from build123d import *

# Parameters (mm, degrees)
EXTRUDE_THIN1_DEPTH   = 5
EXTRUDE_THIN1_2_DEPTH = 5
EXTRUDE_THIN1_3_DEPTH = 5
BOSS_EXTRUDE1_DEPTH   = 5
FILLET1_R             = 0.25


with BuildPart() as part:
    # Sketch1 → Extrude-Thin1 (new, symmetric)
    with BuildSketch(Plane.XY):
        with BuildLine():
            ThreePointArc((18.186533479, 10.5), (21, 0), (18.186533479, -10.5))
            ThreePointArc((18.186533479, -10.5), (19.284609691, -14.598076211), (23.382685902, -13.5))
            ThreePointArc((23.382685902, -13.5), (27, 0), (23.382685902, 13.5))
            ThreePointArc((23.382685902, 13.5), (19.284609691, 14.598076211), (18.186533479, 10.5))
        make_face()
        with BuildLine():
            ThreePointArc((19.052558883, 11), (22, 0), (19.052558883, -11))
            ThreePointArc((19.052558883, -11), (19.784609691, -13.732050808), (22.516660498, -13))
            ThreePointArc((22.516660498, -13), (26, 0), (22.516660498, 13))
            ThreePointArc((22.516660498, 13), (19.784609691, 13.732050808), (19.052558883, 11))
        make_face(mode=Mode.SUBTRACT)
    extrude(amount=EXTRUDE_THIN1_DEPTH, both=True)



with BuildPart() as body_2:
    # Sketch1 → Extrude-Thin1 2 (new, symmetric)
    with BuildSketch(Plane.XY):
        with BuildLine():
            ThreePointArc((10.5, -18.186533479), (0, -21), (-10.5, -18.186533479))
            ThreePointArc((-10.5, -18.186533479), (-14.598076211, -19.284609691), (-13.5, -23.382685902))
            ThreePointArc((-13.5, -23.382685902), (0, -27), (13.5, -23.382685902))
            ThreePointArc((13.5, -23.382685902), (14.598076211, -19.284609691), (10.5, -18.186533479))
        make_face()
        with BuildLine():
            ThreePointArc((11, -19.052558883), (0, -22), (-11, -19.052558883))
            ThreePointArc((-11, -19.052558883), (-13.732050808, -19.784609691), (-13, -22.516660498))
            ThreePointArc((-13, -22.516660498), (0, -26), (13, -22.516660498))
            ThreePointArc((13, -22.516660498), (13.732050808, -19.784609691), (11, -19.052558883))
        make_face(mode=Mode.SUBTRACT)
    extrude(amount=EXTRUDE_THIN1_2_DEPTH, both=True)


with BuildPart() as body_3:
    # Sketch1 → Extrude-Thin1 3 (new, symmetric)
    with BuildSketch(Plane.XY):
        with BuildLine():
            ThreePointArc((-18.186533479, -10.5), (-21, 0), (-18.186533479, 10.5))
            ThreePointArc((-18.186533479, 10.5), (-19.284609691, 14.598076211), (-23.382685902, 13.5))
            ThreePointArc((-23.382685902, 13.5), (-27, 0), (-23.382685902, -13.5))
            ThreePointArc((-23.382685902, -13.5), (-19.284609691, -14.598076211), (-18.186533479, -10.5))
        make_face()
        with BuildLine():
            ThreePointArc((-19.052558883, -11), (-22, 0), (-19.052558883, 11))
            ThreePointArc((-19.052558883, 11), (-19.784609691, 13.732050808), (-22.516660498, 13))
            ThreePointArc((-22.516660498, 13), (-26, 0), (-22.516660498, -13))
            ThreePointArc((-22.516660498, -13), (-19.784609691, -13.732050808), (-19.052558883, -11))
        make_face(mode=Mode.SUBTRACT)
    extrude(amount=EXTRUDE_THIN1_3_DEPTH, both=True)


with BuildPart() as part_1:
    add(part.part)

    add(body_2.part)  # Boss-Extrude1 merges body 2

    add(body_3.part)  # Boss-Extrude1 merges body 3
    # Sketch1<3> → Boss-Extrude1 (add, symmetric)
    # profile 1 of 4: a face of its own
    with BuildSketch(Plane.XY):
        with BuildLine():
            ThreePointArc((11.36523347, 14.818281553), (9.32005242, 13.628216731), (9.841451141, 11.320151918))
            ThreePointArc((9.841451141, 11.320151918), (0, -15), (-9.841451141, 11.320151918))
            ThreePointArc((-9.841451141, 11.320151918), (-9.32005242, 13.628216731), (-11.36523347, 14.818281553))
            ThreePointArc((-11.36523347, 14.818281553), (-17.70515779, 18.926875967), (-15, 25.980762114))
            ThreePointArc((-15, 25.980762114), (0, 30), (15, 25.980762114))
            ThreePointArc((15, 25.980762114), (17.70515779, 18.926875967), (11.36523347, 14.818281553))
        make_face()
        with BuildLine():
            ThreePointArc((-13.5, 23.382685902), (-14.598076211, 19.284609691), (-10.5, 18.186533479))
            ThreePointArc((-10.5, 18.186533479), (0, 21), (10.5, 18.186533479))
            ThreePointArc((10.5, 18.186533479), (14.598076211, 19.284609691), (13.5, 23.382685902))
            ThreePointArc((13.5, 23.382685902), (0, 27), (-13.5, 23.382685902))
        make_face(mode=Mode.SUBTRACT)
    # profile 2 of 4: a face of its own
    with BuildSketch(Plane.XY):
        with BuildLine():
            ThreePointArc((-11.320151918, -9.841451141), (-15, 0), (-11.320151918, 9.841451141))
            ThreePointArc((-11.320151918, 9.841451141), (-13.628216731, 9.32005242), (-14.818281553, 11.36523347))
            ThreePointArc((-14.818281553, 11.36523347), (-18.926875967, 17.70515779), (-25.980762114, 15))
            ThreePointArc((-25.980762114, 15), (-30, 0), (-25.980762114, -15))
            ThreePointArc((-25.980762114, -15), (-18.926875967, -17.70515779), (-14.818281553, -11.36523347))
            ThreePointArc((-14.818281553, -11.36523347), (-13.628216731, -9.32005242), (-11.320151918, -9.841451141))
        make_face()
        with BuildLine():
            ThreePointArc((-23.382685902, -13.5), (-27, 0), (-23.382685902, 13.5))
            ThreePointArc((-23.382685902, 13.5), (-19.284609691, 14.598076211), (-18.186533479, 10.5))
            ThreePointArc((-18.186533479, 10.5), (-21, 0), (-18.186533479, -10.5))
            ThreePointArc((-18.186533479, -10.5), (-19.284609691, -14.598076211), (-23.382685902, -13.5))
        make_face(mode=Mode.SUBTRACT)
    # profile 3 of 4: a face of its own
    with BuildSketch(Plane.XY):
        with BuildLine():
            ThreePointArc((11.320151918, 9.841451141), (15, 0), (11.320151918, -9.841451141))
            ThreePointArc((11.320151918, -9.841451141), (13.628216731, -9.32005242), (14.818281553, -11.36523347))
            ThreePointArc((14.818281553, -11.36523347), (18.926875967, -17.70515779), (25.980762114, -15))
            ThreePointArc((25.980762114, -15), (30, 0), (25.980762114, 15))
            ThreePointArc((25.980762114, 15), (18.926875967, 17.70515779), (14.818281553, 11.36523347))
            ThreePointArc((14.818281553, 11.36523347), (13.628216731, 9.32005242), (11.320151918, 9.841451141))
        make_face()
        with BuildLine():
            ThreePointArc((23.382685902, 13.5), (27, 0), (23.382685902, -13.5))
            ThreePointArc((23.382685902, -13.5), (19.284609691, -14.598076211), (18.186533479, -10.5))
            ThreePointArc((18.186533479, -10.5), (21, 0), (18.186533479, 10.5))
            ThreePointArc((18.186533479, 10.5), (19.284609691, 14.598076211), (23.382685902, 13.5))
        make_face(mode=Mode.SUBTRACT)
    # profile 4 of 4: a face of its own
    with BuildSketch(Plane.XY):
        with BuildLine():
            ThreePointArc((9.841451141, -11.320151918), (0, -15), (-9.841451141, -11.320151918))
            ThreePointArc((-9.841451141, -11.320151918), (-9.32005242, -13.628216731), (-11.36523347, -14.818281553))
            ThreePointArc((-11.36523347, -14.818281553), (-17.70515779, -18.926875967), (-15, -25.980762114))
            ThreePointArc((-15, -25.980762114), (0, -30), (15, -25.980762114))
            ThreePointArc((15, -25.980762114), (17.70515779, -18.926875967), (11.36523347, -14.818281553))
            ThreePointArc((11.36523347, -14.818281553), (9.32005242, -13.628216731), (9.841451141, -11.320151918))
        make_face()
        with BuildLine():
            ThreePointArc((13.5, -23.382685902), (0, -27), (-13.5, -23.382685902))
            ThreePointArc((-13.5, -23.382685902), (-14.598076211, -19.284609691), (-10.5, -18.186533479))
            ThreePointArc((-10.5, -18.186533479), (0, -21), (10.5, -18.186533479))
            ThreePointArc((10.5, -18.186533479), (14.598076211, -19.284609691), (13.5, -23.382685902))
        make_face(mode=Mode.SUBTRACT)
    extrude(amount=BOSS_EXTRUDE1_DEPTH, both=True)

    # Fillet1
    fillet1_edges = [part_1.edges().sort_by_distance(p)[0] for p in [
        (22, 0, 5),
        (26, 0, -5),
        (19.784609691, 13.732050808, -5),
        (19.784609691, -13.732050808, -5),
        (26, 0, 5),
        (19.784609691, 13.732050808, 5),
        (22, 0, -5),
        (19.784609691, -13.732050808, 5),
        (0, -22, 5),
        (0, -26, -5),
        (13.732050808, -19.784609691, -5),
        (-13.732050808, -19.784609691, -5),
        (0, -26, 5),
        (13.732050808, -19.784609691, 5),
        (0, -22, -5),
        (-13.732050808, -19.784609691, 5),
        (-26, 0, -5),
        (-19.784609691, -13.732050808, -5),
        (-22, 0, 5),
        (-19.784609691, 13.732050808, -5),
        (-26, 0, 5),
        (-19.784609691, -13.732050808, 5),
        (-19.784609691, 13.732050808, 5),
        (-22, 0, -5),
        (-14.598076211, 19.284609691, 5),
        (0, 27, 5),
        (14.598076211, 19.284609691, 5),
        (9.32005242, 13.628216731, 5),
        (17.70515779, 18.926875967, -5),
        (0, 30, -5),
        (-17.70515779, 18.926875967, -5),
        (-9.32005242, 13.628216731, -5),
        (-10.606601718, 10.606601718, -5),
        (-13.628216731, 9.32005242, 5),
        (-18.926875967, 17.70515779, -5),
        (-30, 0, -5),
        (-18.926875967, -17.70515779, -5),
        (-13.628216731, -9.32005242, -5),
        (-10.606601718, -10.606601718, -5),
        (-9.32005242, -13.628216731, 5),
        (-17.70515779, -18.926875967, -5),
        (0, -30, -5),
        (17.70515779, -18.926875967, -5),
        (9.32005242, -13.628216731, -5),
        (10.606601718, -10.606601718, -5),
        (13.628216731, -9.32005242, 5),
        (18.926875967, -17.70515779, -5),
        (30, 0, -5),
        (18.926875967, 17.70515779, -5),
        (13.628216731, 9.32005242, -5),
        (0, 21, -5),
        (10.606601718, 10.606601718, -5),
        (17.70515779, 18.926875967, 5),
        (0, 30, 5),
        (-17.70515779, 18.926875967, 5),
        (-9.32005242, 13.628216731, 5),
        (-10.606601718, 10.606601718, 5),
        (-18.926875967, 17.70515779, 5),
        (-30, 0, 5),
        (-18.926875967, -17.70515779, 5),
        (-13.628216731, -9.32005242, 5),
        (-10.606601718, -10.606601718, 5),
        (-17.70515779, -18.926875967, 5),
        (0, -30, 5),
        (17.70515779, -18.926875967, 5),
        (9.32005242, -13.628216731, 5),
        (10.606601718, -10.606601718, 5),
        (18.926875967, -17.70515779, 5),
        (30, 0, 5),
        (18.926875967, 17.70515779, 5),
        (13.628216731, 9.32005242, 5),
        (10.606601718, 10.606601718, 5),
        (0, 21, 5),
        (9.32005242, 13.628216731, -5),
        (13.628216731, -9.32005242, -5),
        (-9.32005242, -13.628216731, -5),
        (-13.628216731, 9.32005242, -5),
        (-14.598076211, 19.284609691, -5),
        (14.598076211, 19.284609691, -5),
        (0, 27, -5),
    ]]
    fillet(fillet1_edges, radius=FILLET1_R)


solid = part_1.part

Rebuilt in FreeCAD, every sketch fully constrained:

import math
import FreeCAD as App
import Part
import Sketcher
Q = App.Units.Quantity


def edges_at(feature, points):
    """Names of the edges that pass closest to the given points."""
    edges = feature.Shape.Edges
    near = lambda p: min(range(len(edges)), key=lambda i: edges[i].distToShape(Part.Vertex(*p))[0])
    return sorted({f"Edge{near(p) + 1}" for p in points})

doc = App.newDocument("Part")
body = doc.addObject("PartDesign::Body", "Body")

# Sketch on XY plane
sketch1 = doc.addObject("Sketcher::SketchObject", "Sketch")
body.addObject(sketch1)
sketch1.AttachmentSupport = (doc.XY_Plane, [""])
sketch1.MapMode = "FlatFace"
sketch1.addGeometry(Part.ArcOfCircle(Part.Circle(App.Vector(0, 0, 0), App.Vector(0, 0, 1), 21), math.radians(-30), math.radians(30)), False)
sketch1.addGeometry(Part.ArcOfCircle(Part.Circle(App.Vector(20.8, -12, 0), App.Vector(0, 0, 1), 3), math.radians(150), math.radians(330)), False)
sketch1.addGeometry(Part.ArcOfCircle(Part.Circle(App.Vector(0, 0, 0), App.Vector(0, 0, 1), 27), math.radians(-30), math.radians(30)), False)
sketch1.addGeometry(Part.ArcOfCircle(Part.Circle(App.Vector(20.8, 12, 0), App.Vector(0, 0, 1), 3), math.radians(30), math.radians(210)), False)
sketch1.addGeometry(Part.ArcOfCircle(Part.Circle(App.Vector(0, 0, 0), App.Vector(0, 0, 1), 22), math.radians(-30), math.radians(30)), False)
sketch1.addGeometry(Part.ArcOfCircle(Part.Circle(App.Vector(20.8, 12, 0), App.Vector(0, 0, 1), 2), math.radians(30), math.radians(210)), False)
sketch1.addGeometry(Part.ArcOfCircle(Part.Circle(App.Vector(0, 0, 0), App.Vector(0, 0, 1), 26), math.radians(-30), math.radians(30)), False)
sketch1.addGeometry(Part.ArcOfCircle(Part.Circle(App.Vector(20.8, -12, 0), App.Vector(0, 0, 1), 2), math.radians(150), math.radians(330)), False)
sketch1.addConstraint(Sketcher.Constraint("Tangent", 0, 1, 1, 1))
sketch1.addConstraint(Sketcher.Constraint("Tangent", 1, 2, 2, 1))
sketch1.addConstraint(Sketcher.Constraint("Tangent", 2, 2, 3, 1))
sketch1.addConstraint(Sketcher.Constraint("Tangent", 3, 2, 0, 2))
sketch1.addConstraint(Sketcher.Constraint("Tangent", 4, 2, 5, 2))
sketch1.addConstraint(Sketcher.Constraint("Tangent", 5, 1, 6, 2))
sketch1.addConstraint(Sketcher.Constraint("Tangent", 6, 1, 7, 2))
sketch1.addConstraint(Sketcher.Constraint("Tangent", 7, 1, 4, 1))
sketch1.addConstraint(Sketcher.Constraint("Coincident", 0, 3, -1, 1))
sketch1.addConstraint(Sketcher.Constraint("Coincident", 2, 3, -1, 1))
sketch1.addConstraint(Sketcher.Constraint("Coincident", 4, 3, -1, 1))
sketch1.addConstraint(Sketcher.Constraint("Coincident", 6, 3, -1, 1))
sketch1.addConstraint(Sketcher.Constraint("Coincident", 5, 3, 3, 3))
sketch1.addConstraint(Sketcher.Constraint("Vertical", 1, 3, 3, 3))
sketch1.addConstraint(Sketcher.Constraint("Vertical", 5, 3, 7, 3))
sketch1.addConstraint(Sketcher.Constraint("Radius", 0, Q("21 mm")))
sketch1.addConstraint(Sketcher.Constraint("Radius", 1, Q("3 mm")))
sketch1.addConstraint(Sketcher.Constraint("Radius", 4, Q("22 mm")))
sketch1.addConstraint(Sketcher.Constraint("DistanceY", 1, 3, -1, 1, Q("12 mm")))
pad1 = doc.addObject("PartDesign::Pad", "Pad")
body.addObject(pad1)
pad1.Profile = sketch1
pad1.Length = 10
pad1.Midplane = True
body2 = doc.addObject("PartDesign::Body", "Body001")

# Sketch on XY plane
sketch2 = doc.addObject("Sketcher::SketchObject", "Sketch001")
body2.addObject(sketch2)
sketch2.AttachmentSupport = (doc.getObject("XY_Plane001"), [""])
sketch2.MapMode = "FlatFace"
sketch2.addGeometry(Part.ArcOfCircle(Part.Circle(App.Vector(0, 0, 0), App.Vector(0, 0, 1), 21), math.radians(-120), math.radians(-60)), False)
sketch2.addGeometry(Part.ArcOfCircle(Part.Circle(App.Vector(-12, -20.8, 0), App.Vector(0, 0, 1), 3), math.radians(60), math.radians(240)), False)
sketch2.addGeometry(Part.ArcOfCircle(Part.Circle(App.Vector(0, 0, 0), App.Vector(0, 0, 1), 27), math.radians(-120), math.radians(-60)), False)
sketch2.addGeometry(Part.ArcOfCircle(Part.Circle(App.Vector(12, -20.8, 0), App.Vector(0, 0, 1), 3), math.radians(-60), math.radians(120)), False)
sketch2.addGeometry(Part.ArcOfCircle(Part.Circle(App.Vector(0, 0, 0), App.Vector(0, 0, 1), 22), math.radians(-120), math.radians(-60)), False)
sketch2.addGeometry(Part.ArcOfCircle(Part.Circle(App.Vector(12, -20.8, 0), App.Vector(0, 0, 1), 2), math.radians(-60), math.radians(120)), False)
sketch2.addGeometry(Part.ArcOfCircle(Part.Circle(App.Vector(0, 0, 0), App.Vector(0, 0, 1), 26), math.radians(-120), math.radians(-60)), False)
sketch2.addGeometry(Part.ArcOfCircle(Part.Circle(App.Vector(-12, -20.8, 0), App.Vector(0, 0, 1), 2), math.radians(60), math.radians(240)), False)
sketch2.addConstraint(Sketcher.Constraint("Tangent", 0, 1, 1, 1))
sketch2.addConstraint(Sketcher.Constraint("Tangent", 1, 2, 2, 1))
sketch2.addConstraint(Sketcher.Constraint("Tangent", 2, 2, 3, 1))
sketch2.addConstraint(Sketcher.Constraint("Tangent", 3, 2, 0, 2))
sketch2.addConstraint(Sketcher.Constraint("Tangent", 4, 2, 5, 2))
sketch2.addConstraint(Sketcher.Constraint("Tangent", 5, 1, 6, 2))
sketch2.addConstraint(Sketcher.Constraint("Tangent", 6, 1, 7, 2))
sketch2.addConstraint(Sketcher.Constraint("Tangent", 7, 1, 4, 1))
sketch2.addConstraint(Sketcher.Constraint("Coincident", 0, 3, -1, 1))
sketch2.addConstraint(Sketcher.Constraint("Coincident", 2, 3, -1, 1))
sketch2.addConstraint(Sketcher.Constraint("Coincident", 4, 3, -1, 1))
sketch2.addConstraint(Sketcher.Constraint("Coincident", 6, 3, -1, 1))
sketch2.addConstraint(Sketcher.Constraint("Coincident", 5, 3, 3, 3))
sketch2.addConstraint(Sketcher.Constraint("Horizontal", 1, 3, 3, 3))
sketch2.addConstraint(Sketcher.Constraint("Horizontal", 5, 3, 7, 3))
sketch2.addConstraint(Sketcher.Constraint("Radius", 0, Q("21 mm")))
sketch2.addConstraint(Sketcher.Constraint("Radius", 1, Q("3 mm")))
sketch2.addConstraint(Sketcher.Constraint("Radius", 4, Q("22 mm")))
sketch2.addConstraint(Sketcher.Constraint("DistanceX", 1, 3, -1, 1, Q("12 mm")))
pad2 = doc.addObject("PartDesign::Pad", "Pad001")
body2.addObject(pad2)
pad2.Profile = sketch2
pad2.Length = 10
pad2.Midplane = True
body3 = doc.addObject("PartDesign::Body", "Body002")

# Sketch on XY plane
sketch3 = doc.addObject("Sketcher::SketchObject", "Sketch002")
body3.addObject(sketch3)
sketch3.AttachmentSupport = (doc.getObject("XY_Plane002"), [""])
sketch3.MapMode = "FlatFace"
sketch3.addGeometry(Part.ArcOfCircle(Part.Circle(App.Vector(0, 0, 0), App.Vector(0, 0, 1), 21), math.radians(150), math.radians(210)), False)
sketch3.addGeometry(Part.ArcOfCircle(Part.Circle(App.Vector(-20.8, 12, 0), App.Vector(0, 0, 1), 3), math.radians(-30), math.radians(150)), False)
sketch3.addGeometry(Part.ArcOfCircle(Part.Circle(App.Vector(0, 0, 0), App.Vector(0, 0, 1), 27), math.radians(150), math.radians(210)), False)
sketch3.addGeometry(Part.ArcOfCircle(Part.Circle(App.Vector(-20.8, -12, 0), App.Vector(0, 0, 1), 3), math.radians(-150), math.radians(30)), False)
sketch3.addGeometry(Part.ArcOfCircle(Part.Circle(App.Vector(0, 0, 0), App.Vector(0, 0, 1), 22), math.radians(150), math.radians(210)), False)
sketch3.addGeometry(Part.ArcOfCircle(Part.Circle(App.Vector(-20.8, -12, 0), App.Vector(0, 0, 1), 2), math.radians(-150), math.radians(30)), False)
sketch3.addGeometry(Part.ArcOfCircle(Part.Circle(App.Vector(0, 0, 0), App.Vector(0, 0, 1), 26), math.radians(150), math.radians(210)), False)
sketch3.addGeometry(Part.ArcOfCircle(Part.Circle(App.Vector(-20.8, 12, 0), App.Vector(0, 0, 1), 2), math.radians(-30), math.radians(150)), False)
sketch3.addConstraint(Sketcher.Constraint("Tangent", 0, 1, 1, 1))
sketch3.addConstraint(Sketcher.Constraint("Tangent", 1, 2, 2, 1))
sketch3.addConstraint(Sketcher.Constraint("Tangent", 2, 2, 3, 1))
sketch3.addConstraint(Sketcher.Constraint("Tangent", 3, 2, 0, 2))
sketch3.addConstraint(Sketcher.Constraint("Tangent", 4, 2, 5, 2))
sketch3.addConstraint(Sketcher.Constraint("Tangent", 5, 1, 6, 2))
sketch3.addConstraint(Sketcher.Constraint("Tangent", 6, 1, 7, 2))
sketch3.addConstraint(Sketcher.Constraint("Tangent", 7, 1, 4, 1))
sketch3.addConstraint(Sketcher.Constraint("Coincident", 0, 3, -1, 1))
sketch3.addConstraint(Sketcher.Constraint("Coincident", 2, 3, -1, 1))
sketch3.addConstraint(Sketcher.Constraint("Coincident", 4, 3, -1, 1))
sketch3.addConstraint(Sketcher.Constraint("Coincident", 6, 3, -1, 1))
sketch3.addConstraint(Sketcher.Constraint("Coincident", 5, 3, 3, 3))
sketch3.addConstraint(Sketcher.Constraint("Vertical", 1, 3, 3, 3))
sketch3.addConstraint(Sketcher.Constraint("Vertical", 5, 3, 7, 3))
sketch3.addConstraint(Sketcher.Constraint("Radius", 0, Q("21 mm")))
sketch3.addConstraint(Sketcher.Constraint("Radius", 1, Q("3 mm")))
sketch3.addConstraint(Sketcher.Constraint("Radius", 4, Q("22 mm")))
sketch3.addConstraint(Sketcher.Constraint("DistanceY", -1, 1, 1, 3, Q("12 mm")))
pad3 = doc.addObject("PartDesign::Pad", "Pad002")
body3.addObject(pad3)
pad3.Profile = sketch3
pad3.Length = 10
pad3.Midplane = True
body.AllowCompound = True
doc.recompute()

boolean = doc.addObject("PartDesign::Boolean", "Boolean")
body.addObject(boolean)
boolean.Type = "Fuse"
boolean.addObjects([body2])
doc.recompute()

boolean2 = doc.addObject("PartDesign::Boolean", "Boolean001")
body.addObject(boolean2)
boolean2.Type = "Fuse"
boolean2.addObjects([body3])

# Sketch on XY plane
sketch4 = doc.addObject("Sketcher::SketchObject", "Sketch003")
body.addObject(sketch4)
sketch4.AttachmentSupport = (doc.XY_Plane, [""])
sketch4.MapMode = "FlatFace"
sketch4.addGeometry(Part.ArcOfCircle(Part.Circle(App.Vector(11.2, 12.8, 0), App.Vector(0, 0, 1), 2), math.radians(84), math.radians(229)), False)
sketch4.addGeometry(Part.ArcOfCircle(Part.Circle(App.Vector(12, 20.8, 0), App.Vector(0, 0, 1), 6), math.radians(-96), math.radians(60)), False)
sketch4.addGeometry(Part.ArcOfCircle(Part.Circle(App.Vector(0, 0, 0), App.Vector(0, 0, 1), 30), math.radians(60), math.radians(120)), False)
sketch4.addGeometry(Part.ArcOfCircle(Part.Circle(App.Vector(-12, 20.8, 0), App.Vector(0, 0, 1), 6), math.radians(120), math.radians(276)), False)
sketch4.addGeometry(Part.ArcOfCircle(Part.Circle(App.Vector(-11.2, 12.8, 0), App.Vector(0, 0, 1), 2), math.radians(-49), math.radians(96)), False)
sketch4.addGeometry(Part.ArcOfCircle(Part.Circle(App.Vector(0, 0, 0), App.Vector(0, 0, 1), 15), math.radians(131), math.radians(139)), False)
sketch4.addGeometry(Part.ArcOfCircle(Part.Circle(App.Vector(-12.8, 11.2, 0), App.Vector(0, 0, 1), 2), math.radians(174), math.radians(319)), False)
sketch4.addGeometry(Part.ArcOfCircle(Part.Circle(App.Vector(-20.8, 12, 0), App.Vector(0, 0, 1), 6), math.radians(-6), math.radians(150)), False)
sketch4.addGeometry(Part.ArcOfCircle(Part.Circle(App.Vector(0, 0, 0), App.Vector(0, 0, 1), 30), math.radians(150), math.radians(210)), False)
sketch4.addGeometry(Part.ArcOfCircle(Part.Circle(App.Vector(-20.8, -12, 0), App.Vector(0, 0, 1), 6), math.radians(-150), math.radians(6)), False)
sketch4.addGeometry(Part.ArcOfCircle(Part.Circle(App.Vector(-12.8, -11.2, 0), App.Vector(0, 0, 1), 2), math.radians(41), math.radians(186)), False)
sketch4.addGeometry(Part.ArcOfCircle(Part.Circle(App.Vector(0, 0, 0), App.Vector(0, 0, 1), 15), math.radians(-139), math.radians(-131)), False)
sketch4.addGeometry(Part.ArcOfCircle(Part.Circle(App.Vector(-11.2, -12.8, 0), App.Vector(0, 0, 1), 2), math.radians(-96), math.radians(49)), False)
sketch4.addGeometry(Part.ArcOfCircle(Part.Circle(App.Vector(-12, -20.8, 0), App.Vector(0, 0, 1), 6), math.radians(84), math.radians(240)), False)
sketch4.addGeometry(Part.ArcOfCircle(Part.Circle(App.Vector(0, 0, 0), App.Vector(0, 0, 1), 30), math.radians(-120), math.radians(-60)), False)
sketch4.addGeometry(Part.ArcOfCircle(Part.Circle(App.Vector(12, -20.8, 0), App.Vector(0, 0, 1), 6), math.radians(-60), math.radians(96)), False)
sketch4.addGeometry(Part.ArcOfCircle(Part.Circle(App.Vector(11.2, -12.8, 0), App.Vector(0, 0, 1), 2), math.radians(131), math.radians(276)), False)
sketch4.addGeometry(Part.ArcOfCircle(Part.Circle(App.Vector(0, 0, 0), App.Vector(0, 0, 1), 15), math.radians(-49), math.radians(-41)), False)
sketch4.addGeometry(Part.ArcOfCircle(Part.Circle(App.Vector(12.8, -11.2, 0), App.Vector(0, 0, 1), 2), math.radians(-6), math.radians(139)), False)
sketch4.addGeometry(Part.ArcOfCircle(Part.Circle(App.Vector(20.8, -12, 0), App.Vector(0, 0, 1), 6), math.radians(174), math.radians(330)), False)
sketch4.addGeometry(Part.ArcOfCircle(Part.Circle(App.Vector(0, 0, 0), App.Vector(0, 0, 1), 30), math.radians(-30), math.radians(30)), False)
sketch4.addGeometry(Part.ArcOfCircle(Part.Circle(App.Vector(20.8, 12, 0), App.Vector(0, 0, 1), 6), math.radians(30), math.radians(186)), False)
sketch4.addGeometry(Part.ArcOfCircle(Part.Circle(App.Vector(12.8, 11.2, 0), App.Vector(0, 0, 1), 2), math.radians(-139), math.radians(6)), False)
sketch4.addGeometry(Part.ArcOfCircle(Part.Circle(App.Vector(0, 0, 0), App.Vector(0, 0, 1), 15), math.radians(41), math.radians(49)), False)
sketch4.addGeometry(Part.ArcOfCircle(Part.Circle(App.Vector(0, 0, 0), App.Vector(0, 0, 1), 27), math.radians(60), math.radians(120)), False)
sketch4.addGeometry(Part.ArcOfCircle(Part.Circle(App.Vector(12, 20.8, 0), App.Vector(0, 0, 1), 3), math.radians(-120), math.radians(60)), False)
sketch4.addGeometry(Part.ArcOfCircle(Part.Circle(App.Vector(0, 0, 0), App.Vector(0, 0, 1), 21), math.radians(60), math.radians(120)), False)
sketch4.addGeometry(Part.ArcOfCircle(Part.Circle(App.Vector(-12, 20.8, 0), App.Vector(0, 0, 1), 3), math.radians(120), math.radians(300)), False)
sketch4.addGeometry(Part.ArcOfCircle(Part.Circle(App.Vector(0, 0, 0), App.Vector(0, 0, 1), 27), math.radians(-30), math.radians(30)), False)
sketch4.addGeometry(Part.ArcOfCircle(Part.Circle(App.Vector(20.8, -12, 0), App.Vector(0, 0, 1), 3), math.radians(150), math.radians(330)), False)
sketch4.addGeometry(Part.ArcOfCircle(Part.Circle(App.Vector(0, 0, 0), App.Vector(0, 0, 1), 21), math.radians(-30), math.radians(30)), False)
sketch4.addGeometry(Part.ArcOfCircle(Part.Circle(App.Vector(20.8, 12, 0), App.Vector(0, 0, 1), 3), math.radians(30), math.radians(210)), False)
sketch4.addGeometry(Part.ArcOfCircle(Part.Circle(App.Vector(0, 0, 0), App.Vector(0, 0, 1), 27), math.radians(-120), math.radians(-60)), False)
sketch4.addGeometry(Part.ArcOfCircle(Part.Circle(App.Vector(-12, -20.8, 0), App.Vector(0, 0, 1), 3), math.radians(60), math.radians(240)), False)
sketch4.addGeometry(Part.ArcOfCircle(Part.Circle(App.Vector(0, 0, 0), App.Vector(0, 0, 1), 21), math.radians(-120), math.radians(-60)), False)
sketch4.addGeometry(Part.ArcOfCircle(Part.Circle(App.Vector(12, -20.8, 0), App.Vector(0, 0, 1), 3), math.radians(-60), math.radians(120)), False)
sketch4.addGeometry(Part.ArcOfCircle(Part.Circle(App.Vector(0, 0, 0), App.Vector(0, 0, 1), 27), math.radians(150), math.radians(210)), False)
sketch4.addGeometry(Part.ArcOfCircle(Part.Circle(App.Vector(-20.8, 12, 0), App.Vector(0, 0, 1), 3), math.radians(-30), math.radians(150)), False)
sketch4.addGeometry(Part.ArcOfCircle(Part.Circle(App.Vector(0, 0, 0), App.Vector(0, 0, 1), 21), math.radians(150), math.radians(210)), False)
sketch4.addGeometry(Part.ArcOfCircle(Part.Circle(App.Vector(-20.8, -12, 0), App.Vector(0, 0, 1), 3), math.radians(-150), math.radians(30)), False)
sketch4.addConstraint(Sketcher.Constraint("Tangent", 0, 1, 1, 1))
sketch4.addConstraint(Sketcher.Constraint("Tangent", 1, 2, 2, 1))
sketch4.addConstraint(Sketcher.Constraint("Tangent", 2, 2, 3, 1))
sketch4.addConstraint(Sketcher.Constraint("Tangent", 3, 2, 4, 2))
sketch4.addConstraint(Sketcher.Constraint("Tangent", 4, 1, 5, 1))
sketch4.addConstraint(Sketcher.Constraint("Tangent", 5, 2, 6, 2))
sketch4.addConstraint(Sketcher.Constraint("Tangent", 6, 1, 7, 1))
sketch4.addConstraint(Sketcher.Constraint("Tangent", 7, 2, 8, 1))
sketch4.addConstraint(Sketcher.Constraint("Tangent", 8, 2, 9, 1))
sketch4.addConstraint(Sketcher.Constraint("Tangent", 9, 2, 10, 2))
sketch4.addConstraint(Sketcher.Constraint("Tangent", 10, 1, 11, 1))
sketch4.addConstraint(Sketcher.Constraint("Tangent", 11, 2, 12, 2))
sketch4.addConstraint(Sketcher.Constraint("Tangent", 12, 1, 13, 1))
sketch4.addConstraint(Sketcher.Constraint("Tangent", 13, 2, 14, 1))
sketch4.addConstraint(Sketcher.Constraint("Tangent", 14, 2, 15, 1))
sketch4.addConstraint(Sketcher.Constraint("Tangent", 15, 2, 16, 2))
sketch4.addConstraint(Sketcher.Constraint("Tangent", 16, 1, 17, 1))
sketch4.addConstraint(Sketcher.Constraint("Tangent", 17, 2, 18, 2))
sketch4.addConstraint(Sketcher.Constraint("Tangent", 18, 1, 19, 1))
sketch4.addConstraint(Sketcher.Constraint("Tangent", 19, 2, 20, 1))
sketch4.addConstraint(Sketcher.Constraint("Tangent", 20, 2, 21, 1))
sketch4.addConstraint(Sketcher.Constraint("Tangent", 21, 2, 22, 2))
sketch4.addConstraint(Sketcher.Constraint("Tangent", 22, 1, 23, 1))
sketch4.addConstraint(Sketcher.Constraint("Tangent", 23, 2, 0, 2))
sketch4.addConstraint(Sketcher.Constraint("Tangent", 24, 1, 25, 2))
sketch4.addConstraint(Sketcher.Constraint("Tangent", 25, 1, 26, 1))
sketch4.addConstraint(Sketcher.Constraint("Tangent", 26, 2, 27, 2))
sketch4.addConstraint(Sketcher.Constraint("Tangent", 27, 1, 24, 2))
sketch4.addConstraint(Sketcher.Constraint("Tangent", 28, 1, 29, 2))
sketch4.addConstraint(Sketcher.Constraint("Tangent", 29, 1, 30, 1))
sketch4.addConstraint(Sketcher.Constraint("Tangent", 30, 2, 31, 2))
sketch4.addConstraint(Sketcher.Constraint("Tangent", 31, 1, 28, 2))
sketch4.addConstraint(Sketcher.Constraint("Tangent", 32, 1, 33, 2))
sketch4.addConstraint(Sketcher.Constraint("Tangent", 33, 1, 34, 1))
sketch4.addConstraint(Sketcher.Constraint("Tangent", 34, 2, 35, 2))
sketch4.addConstraint(Sketcher.Constraint("Tangent", 35, 1, 32, 2))
sketch4.addConstraint(Sketcher.Constraint("Tangent", 36, 1, 37, 2))
sketch4.addConstraint(Sketcher.Constraint("Tangent", 37, 1, 38, 1))
sketch4.addConstraint(Sketcher.Constraint("Tangent", 38, 2, 39, 2))
sketch4.addConstraint(Sketcher.Constraint("Tangent", 39, 1, 36, 2))
sketch4.addConstraint(Sketcher.Constraint("Coincident", 2, 3, -1, 1))
sketch4.addConstraint(Sketcher.Constraint("Coincident", 5, 3, -1, 1))
sketch4.addConstraint(Sketcher.Constraint("Coincident", 8, 3, -1, 1))
sketch4.addConstraint(Sketcher.Constraint("Coincident", 11, 3, -1, 1))
sketch4.addConstraint(Sketcher.Constraint("Coincident", 14, 3, -1, 1))
sketch4.addConstraint(Sketcher.Constraint("Coincident", 17, 3, -1, 1))
sketch4.addConstraint(Sketcher.Constraint("Coincident", 20, 3, -1, 1))
sketch4.addConstraint(Sketcher.Constraint("Coincident", 23, 3, -1, 1))
sketch4.addConstraint(Sketcher.Constraint("Coincident", 24, 3, -1, 1))
sketch4.addConstraint(Sketcher.Constraint("Coincident", 26, 3, -1, 1))
sketch4.addConstraint(Sketcher.Constraint("Coincident", 28, 3, -1, 1))
sketch4.addConstraint(Sketcher.Constraint("Coincident", 30, 3, -1, 1))
sketch4.addConstraint(Sketcher.Constraint("Coincident", 32, 3, -1, 1))
sketch4.addConstraint(Sketcher.Constraint("Coincident", 34, 3, -1, 1))
sketch4.addConstraint(Sketcher.Constraint("Coincident", 36, 3, -1, 1))
sketch4.addConstraint(Sketcher.Constraint("Coincident", 38, 3, -1, 1))
sketch4.addConstraint(Sketcher.Constraint("Coincident", 25, 3, 1, 3))
sketch4.addConstraint(Sketcher.Constraint("Coincident", 27, 3, 3, 3))
sketch4.addConstraint(Sketcher.Constraint("Coincident", 29, 3, 19, 3))
sketch4.addConstraint(Sketcher.Constraint("Coincident", 31, 3, 21, 3))
sketch4.addConstraint(Sketcher.Constraint("Coincident", 33, 3, 13, 3))
sketch4.addConstraint(Sketcher.Constraint("Coincident", 35, 3, 15, 3))
sketch4.addConstraint(Sketcher.Constraint("Coincident", 37, 3, 7, 3))
sketch4.addConstraint(Sketcher.Constraint("Coincident", 39, 3, 9, 3))
sketch4.addConstraint(Sketcher.Constraint("Equal", 0, 4))
sketch4.addConstraint(Sketcher.Constraint("Equal", 4, 6))
sketch4.addConstraint(Sketcher.Constraint("Equal", 3, 7))
sketch4.addConstraint(Sketcher.Constraint("Equal", 2, 8))
sketch4.addConstraint(Sketcher.Constraint("Equal", 6, 10))
sketch4.addConstraint(Sketcher.Constraint("Equal", 5, 11))
sketch4.addConstraint(Sketcher.Constraint("Equal", 10, 12))
sketch4.addConstraint(Sketcher.Constraint("Equal", 9, 13))
sketch4.addConstraint(Sketcher.Constraint("Equal", 8, 14))
sketch4.addConstraint(Sketcher.Constraint("Equal", 12, 16))
sketch4.addConstraint(Sketcher.Constraint("Equal", 11, 17))
sketch4.addConstraint(Sketcher.Constraint("Equal", 16, 18))
sketch4.addConstraint(Sketcher.Constraint("Equal", 15, 19))
sketch4.addConstraint(Sketcher.Constraint("Equal", 14, 20))
sketch4.addConstraint(Sketcher.Constraint("Equal", 18, 22))
sketch4.addConstraint(Sketcher.Constraint("Equal", 17, 23))
sketch4.addConstraint(Sketcher.Constraint("Equal", 24, 28))
sketch4.addConstraint(Sketcher.Constraint("Equal", 28, 32))
sketch4.addConstraint(Sketcher.Constraint("Equal", 32, 36))
sketch4.addConstraint(Sketcher.Constraint("Horizontal", 1, 3, 3, 3))
sketch4.addConstraint(Sketcher.Constraint("Horizontal", 13, 3, 15, 3))
sketch4.addConstraint(Sketcher.Constraint("Horizontal", 10, 3, 18, 3))
sketch4.addConstraint(Sketcher.Constraint("Horizontal", 7, 3, 21, 3))
sketch4.addConstraint(Sketcher.Constraint("Vertical", 7, 3, 9, 3))
sketch4.addConstraint(Sketcher.Constraint("Vertical", 4, 3, 12, 3))
sketch4.addConstraint(Sketcher.Constraint("Radius", 0, Q("2 mm")))
sketch4.addConstraint(Sketcher.Constraint("Radius", 1, Q("6 mm")))
sketch4.addConstraint(Sketcher.Constraint("Radius", 2, Q("30 mm")))
sketch4.addConstraint(Sketcher.Constraint("Radius", 5, Q("15 mm")))
sketch4.addConstraint(Sketcher.Constraint("Radius", 24, Q("27 mm")))
sketch4.addConstraint(Sketcher.Constraint("DistanceX", -1, 1, 1, 3, Q("12 mm")))
sketch4.addConstraint(Sketcher.Constraint("DistanceY", -1, 1, 7, 3, Q("12 mm")))
pad4 = doc.addObject("PartDesign::Pad", "Pad003")
body.addObject(pad4)
pad4.Profile = sketch4
pad4.Length = 10
pad4.Midplane = True
doc.recompute()

fillet = doc.addObject("PartDesign::Fillet", "Fillet")
body.addObject(fillet)
fillet.Base = (pad4, edges_at(pad4, [
    (22, 0, 5),
    (26, 0, -5),
    (19.785, 13.732, -5),
    (19.785, -13.732, -5),
    (26, 0, 5),
    (19.785, 13.732, 5),
    (22, 0, -5),
    (19.785, -13.732, 5),
    (0, -22, 5),
    (0, -26, -5),
    (13.732, -19.785, -5),
    (-13.732, -19.785, -5),
    (0, -26, 5),
    (13.732, -19.785, 5),
    (0, -22, -5),
    (-13.732, -19.785, 5),
    (-26, 0, -5),
    (-19.785, -13.732, -5),
    (-22, 0, 5),
    (-19.785, 13.732, -5),
    (-26, 0, 5),
    (-19.785, -13.732, 5),
    (-19.785, 13.732, 5),
    (-22, 0, -5),
    (-14.598, 19.285, 5),
    (0, 27, 5),
    (14.598, 19.285, 5),
    (9.32, 13.628, 5),
    (17.705, 18.927, -5),
    (0, 30, -5),
    (-17.705, 18.927, -5),
    (-9.32, 13.628, -5),
    (-10.607, 10.607, -5),
    (-13.628, 9.32, 5),
    (-18.927, 17.705, -5),
    (-30, 0, -5),
    (-18.927, -17.705, -5),
    (-13.628, -9.32, -5),
    (-10.607, -10.607, -5),
    (-9.32, -13.628, 5),
    (-17.705, -18.927, -5),
    (0, -30, -5),
    (17.705, -18.927, -5),
    (9.32, -13.628, -5),
    (10.607, -10.607, -5),
    (13.628, -9.32, 5),
    (18.927, -17.705, -5),
    (30, 0, -5),
    (18.927, 17.705, -5),
    (13.628, 9.32, -5),
    (0, 21, -5),
    (10.607, 10.607, -5),
    (17.705, 18.927, 5),
    (0, 30, 5),
    (-17.705, 18.927, 5),
    (-9.32, 13.628, 5),
    (-10.607, 10.607, 5),
    (-18.927, 17.705, 5),
    (-30, 0, 5),
    (-18.927, -17.705, 5),
    (-13.628, -9.32, 5),
    (-10.607, -10.607, 5),
    (-17.705, -18.927, 5),
    (0, -30, 5),
    (17.705, -18.927, 5),
    (9.32, -13.628, 5),
    (10.607, -10.607, 5),
    (18.927, -17.705, 5),
    (30, 0, 5),
    (18.927, 17.705, 5),
    (13.628, 9.32, 5),
    (10.607, 10.607, 5),
    (0, 21, 5),
    (9.32, 13.628, -5),
    (13.628, -9.32, -5),
    (-9.32, -13.628, -5),
    (-13.628, 9.32, -5),
    (-14.598, 19.285, -5),
    (14.598, 19.285, -5),
    (0, 27, -5),
]))
fillet.Radius = 0.25

doc.recompute()
